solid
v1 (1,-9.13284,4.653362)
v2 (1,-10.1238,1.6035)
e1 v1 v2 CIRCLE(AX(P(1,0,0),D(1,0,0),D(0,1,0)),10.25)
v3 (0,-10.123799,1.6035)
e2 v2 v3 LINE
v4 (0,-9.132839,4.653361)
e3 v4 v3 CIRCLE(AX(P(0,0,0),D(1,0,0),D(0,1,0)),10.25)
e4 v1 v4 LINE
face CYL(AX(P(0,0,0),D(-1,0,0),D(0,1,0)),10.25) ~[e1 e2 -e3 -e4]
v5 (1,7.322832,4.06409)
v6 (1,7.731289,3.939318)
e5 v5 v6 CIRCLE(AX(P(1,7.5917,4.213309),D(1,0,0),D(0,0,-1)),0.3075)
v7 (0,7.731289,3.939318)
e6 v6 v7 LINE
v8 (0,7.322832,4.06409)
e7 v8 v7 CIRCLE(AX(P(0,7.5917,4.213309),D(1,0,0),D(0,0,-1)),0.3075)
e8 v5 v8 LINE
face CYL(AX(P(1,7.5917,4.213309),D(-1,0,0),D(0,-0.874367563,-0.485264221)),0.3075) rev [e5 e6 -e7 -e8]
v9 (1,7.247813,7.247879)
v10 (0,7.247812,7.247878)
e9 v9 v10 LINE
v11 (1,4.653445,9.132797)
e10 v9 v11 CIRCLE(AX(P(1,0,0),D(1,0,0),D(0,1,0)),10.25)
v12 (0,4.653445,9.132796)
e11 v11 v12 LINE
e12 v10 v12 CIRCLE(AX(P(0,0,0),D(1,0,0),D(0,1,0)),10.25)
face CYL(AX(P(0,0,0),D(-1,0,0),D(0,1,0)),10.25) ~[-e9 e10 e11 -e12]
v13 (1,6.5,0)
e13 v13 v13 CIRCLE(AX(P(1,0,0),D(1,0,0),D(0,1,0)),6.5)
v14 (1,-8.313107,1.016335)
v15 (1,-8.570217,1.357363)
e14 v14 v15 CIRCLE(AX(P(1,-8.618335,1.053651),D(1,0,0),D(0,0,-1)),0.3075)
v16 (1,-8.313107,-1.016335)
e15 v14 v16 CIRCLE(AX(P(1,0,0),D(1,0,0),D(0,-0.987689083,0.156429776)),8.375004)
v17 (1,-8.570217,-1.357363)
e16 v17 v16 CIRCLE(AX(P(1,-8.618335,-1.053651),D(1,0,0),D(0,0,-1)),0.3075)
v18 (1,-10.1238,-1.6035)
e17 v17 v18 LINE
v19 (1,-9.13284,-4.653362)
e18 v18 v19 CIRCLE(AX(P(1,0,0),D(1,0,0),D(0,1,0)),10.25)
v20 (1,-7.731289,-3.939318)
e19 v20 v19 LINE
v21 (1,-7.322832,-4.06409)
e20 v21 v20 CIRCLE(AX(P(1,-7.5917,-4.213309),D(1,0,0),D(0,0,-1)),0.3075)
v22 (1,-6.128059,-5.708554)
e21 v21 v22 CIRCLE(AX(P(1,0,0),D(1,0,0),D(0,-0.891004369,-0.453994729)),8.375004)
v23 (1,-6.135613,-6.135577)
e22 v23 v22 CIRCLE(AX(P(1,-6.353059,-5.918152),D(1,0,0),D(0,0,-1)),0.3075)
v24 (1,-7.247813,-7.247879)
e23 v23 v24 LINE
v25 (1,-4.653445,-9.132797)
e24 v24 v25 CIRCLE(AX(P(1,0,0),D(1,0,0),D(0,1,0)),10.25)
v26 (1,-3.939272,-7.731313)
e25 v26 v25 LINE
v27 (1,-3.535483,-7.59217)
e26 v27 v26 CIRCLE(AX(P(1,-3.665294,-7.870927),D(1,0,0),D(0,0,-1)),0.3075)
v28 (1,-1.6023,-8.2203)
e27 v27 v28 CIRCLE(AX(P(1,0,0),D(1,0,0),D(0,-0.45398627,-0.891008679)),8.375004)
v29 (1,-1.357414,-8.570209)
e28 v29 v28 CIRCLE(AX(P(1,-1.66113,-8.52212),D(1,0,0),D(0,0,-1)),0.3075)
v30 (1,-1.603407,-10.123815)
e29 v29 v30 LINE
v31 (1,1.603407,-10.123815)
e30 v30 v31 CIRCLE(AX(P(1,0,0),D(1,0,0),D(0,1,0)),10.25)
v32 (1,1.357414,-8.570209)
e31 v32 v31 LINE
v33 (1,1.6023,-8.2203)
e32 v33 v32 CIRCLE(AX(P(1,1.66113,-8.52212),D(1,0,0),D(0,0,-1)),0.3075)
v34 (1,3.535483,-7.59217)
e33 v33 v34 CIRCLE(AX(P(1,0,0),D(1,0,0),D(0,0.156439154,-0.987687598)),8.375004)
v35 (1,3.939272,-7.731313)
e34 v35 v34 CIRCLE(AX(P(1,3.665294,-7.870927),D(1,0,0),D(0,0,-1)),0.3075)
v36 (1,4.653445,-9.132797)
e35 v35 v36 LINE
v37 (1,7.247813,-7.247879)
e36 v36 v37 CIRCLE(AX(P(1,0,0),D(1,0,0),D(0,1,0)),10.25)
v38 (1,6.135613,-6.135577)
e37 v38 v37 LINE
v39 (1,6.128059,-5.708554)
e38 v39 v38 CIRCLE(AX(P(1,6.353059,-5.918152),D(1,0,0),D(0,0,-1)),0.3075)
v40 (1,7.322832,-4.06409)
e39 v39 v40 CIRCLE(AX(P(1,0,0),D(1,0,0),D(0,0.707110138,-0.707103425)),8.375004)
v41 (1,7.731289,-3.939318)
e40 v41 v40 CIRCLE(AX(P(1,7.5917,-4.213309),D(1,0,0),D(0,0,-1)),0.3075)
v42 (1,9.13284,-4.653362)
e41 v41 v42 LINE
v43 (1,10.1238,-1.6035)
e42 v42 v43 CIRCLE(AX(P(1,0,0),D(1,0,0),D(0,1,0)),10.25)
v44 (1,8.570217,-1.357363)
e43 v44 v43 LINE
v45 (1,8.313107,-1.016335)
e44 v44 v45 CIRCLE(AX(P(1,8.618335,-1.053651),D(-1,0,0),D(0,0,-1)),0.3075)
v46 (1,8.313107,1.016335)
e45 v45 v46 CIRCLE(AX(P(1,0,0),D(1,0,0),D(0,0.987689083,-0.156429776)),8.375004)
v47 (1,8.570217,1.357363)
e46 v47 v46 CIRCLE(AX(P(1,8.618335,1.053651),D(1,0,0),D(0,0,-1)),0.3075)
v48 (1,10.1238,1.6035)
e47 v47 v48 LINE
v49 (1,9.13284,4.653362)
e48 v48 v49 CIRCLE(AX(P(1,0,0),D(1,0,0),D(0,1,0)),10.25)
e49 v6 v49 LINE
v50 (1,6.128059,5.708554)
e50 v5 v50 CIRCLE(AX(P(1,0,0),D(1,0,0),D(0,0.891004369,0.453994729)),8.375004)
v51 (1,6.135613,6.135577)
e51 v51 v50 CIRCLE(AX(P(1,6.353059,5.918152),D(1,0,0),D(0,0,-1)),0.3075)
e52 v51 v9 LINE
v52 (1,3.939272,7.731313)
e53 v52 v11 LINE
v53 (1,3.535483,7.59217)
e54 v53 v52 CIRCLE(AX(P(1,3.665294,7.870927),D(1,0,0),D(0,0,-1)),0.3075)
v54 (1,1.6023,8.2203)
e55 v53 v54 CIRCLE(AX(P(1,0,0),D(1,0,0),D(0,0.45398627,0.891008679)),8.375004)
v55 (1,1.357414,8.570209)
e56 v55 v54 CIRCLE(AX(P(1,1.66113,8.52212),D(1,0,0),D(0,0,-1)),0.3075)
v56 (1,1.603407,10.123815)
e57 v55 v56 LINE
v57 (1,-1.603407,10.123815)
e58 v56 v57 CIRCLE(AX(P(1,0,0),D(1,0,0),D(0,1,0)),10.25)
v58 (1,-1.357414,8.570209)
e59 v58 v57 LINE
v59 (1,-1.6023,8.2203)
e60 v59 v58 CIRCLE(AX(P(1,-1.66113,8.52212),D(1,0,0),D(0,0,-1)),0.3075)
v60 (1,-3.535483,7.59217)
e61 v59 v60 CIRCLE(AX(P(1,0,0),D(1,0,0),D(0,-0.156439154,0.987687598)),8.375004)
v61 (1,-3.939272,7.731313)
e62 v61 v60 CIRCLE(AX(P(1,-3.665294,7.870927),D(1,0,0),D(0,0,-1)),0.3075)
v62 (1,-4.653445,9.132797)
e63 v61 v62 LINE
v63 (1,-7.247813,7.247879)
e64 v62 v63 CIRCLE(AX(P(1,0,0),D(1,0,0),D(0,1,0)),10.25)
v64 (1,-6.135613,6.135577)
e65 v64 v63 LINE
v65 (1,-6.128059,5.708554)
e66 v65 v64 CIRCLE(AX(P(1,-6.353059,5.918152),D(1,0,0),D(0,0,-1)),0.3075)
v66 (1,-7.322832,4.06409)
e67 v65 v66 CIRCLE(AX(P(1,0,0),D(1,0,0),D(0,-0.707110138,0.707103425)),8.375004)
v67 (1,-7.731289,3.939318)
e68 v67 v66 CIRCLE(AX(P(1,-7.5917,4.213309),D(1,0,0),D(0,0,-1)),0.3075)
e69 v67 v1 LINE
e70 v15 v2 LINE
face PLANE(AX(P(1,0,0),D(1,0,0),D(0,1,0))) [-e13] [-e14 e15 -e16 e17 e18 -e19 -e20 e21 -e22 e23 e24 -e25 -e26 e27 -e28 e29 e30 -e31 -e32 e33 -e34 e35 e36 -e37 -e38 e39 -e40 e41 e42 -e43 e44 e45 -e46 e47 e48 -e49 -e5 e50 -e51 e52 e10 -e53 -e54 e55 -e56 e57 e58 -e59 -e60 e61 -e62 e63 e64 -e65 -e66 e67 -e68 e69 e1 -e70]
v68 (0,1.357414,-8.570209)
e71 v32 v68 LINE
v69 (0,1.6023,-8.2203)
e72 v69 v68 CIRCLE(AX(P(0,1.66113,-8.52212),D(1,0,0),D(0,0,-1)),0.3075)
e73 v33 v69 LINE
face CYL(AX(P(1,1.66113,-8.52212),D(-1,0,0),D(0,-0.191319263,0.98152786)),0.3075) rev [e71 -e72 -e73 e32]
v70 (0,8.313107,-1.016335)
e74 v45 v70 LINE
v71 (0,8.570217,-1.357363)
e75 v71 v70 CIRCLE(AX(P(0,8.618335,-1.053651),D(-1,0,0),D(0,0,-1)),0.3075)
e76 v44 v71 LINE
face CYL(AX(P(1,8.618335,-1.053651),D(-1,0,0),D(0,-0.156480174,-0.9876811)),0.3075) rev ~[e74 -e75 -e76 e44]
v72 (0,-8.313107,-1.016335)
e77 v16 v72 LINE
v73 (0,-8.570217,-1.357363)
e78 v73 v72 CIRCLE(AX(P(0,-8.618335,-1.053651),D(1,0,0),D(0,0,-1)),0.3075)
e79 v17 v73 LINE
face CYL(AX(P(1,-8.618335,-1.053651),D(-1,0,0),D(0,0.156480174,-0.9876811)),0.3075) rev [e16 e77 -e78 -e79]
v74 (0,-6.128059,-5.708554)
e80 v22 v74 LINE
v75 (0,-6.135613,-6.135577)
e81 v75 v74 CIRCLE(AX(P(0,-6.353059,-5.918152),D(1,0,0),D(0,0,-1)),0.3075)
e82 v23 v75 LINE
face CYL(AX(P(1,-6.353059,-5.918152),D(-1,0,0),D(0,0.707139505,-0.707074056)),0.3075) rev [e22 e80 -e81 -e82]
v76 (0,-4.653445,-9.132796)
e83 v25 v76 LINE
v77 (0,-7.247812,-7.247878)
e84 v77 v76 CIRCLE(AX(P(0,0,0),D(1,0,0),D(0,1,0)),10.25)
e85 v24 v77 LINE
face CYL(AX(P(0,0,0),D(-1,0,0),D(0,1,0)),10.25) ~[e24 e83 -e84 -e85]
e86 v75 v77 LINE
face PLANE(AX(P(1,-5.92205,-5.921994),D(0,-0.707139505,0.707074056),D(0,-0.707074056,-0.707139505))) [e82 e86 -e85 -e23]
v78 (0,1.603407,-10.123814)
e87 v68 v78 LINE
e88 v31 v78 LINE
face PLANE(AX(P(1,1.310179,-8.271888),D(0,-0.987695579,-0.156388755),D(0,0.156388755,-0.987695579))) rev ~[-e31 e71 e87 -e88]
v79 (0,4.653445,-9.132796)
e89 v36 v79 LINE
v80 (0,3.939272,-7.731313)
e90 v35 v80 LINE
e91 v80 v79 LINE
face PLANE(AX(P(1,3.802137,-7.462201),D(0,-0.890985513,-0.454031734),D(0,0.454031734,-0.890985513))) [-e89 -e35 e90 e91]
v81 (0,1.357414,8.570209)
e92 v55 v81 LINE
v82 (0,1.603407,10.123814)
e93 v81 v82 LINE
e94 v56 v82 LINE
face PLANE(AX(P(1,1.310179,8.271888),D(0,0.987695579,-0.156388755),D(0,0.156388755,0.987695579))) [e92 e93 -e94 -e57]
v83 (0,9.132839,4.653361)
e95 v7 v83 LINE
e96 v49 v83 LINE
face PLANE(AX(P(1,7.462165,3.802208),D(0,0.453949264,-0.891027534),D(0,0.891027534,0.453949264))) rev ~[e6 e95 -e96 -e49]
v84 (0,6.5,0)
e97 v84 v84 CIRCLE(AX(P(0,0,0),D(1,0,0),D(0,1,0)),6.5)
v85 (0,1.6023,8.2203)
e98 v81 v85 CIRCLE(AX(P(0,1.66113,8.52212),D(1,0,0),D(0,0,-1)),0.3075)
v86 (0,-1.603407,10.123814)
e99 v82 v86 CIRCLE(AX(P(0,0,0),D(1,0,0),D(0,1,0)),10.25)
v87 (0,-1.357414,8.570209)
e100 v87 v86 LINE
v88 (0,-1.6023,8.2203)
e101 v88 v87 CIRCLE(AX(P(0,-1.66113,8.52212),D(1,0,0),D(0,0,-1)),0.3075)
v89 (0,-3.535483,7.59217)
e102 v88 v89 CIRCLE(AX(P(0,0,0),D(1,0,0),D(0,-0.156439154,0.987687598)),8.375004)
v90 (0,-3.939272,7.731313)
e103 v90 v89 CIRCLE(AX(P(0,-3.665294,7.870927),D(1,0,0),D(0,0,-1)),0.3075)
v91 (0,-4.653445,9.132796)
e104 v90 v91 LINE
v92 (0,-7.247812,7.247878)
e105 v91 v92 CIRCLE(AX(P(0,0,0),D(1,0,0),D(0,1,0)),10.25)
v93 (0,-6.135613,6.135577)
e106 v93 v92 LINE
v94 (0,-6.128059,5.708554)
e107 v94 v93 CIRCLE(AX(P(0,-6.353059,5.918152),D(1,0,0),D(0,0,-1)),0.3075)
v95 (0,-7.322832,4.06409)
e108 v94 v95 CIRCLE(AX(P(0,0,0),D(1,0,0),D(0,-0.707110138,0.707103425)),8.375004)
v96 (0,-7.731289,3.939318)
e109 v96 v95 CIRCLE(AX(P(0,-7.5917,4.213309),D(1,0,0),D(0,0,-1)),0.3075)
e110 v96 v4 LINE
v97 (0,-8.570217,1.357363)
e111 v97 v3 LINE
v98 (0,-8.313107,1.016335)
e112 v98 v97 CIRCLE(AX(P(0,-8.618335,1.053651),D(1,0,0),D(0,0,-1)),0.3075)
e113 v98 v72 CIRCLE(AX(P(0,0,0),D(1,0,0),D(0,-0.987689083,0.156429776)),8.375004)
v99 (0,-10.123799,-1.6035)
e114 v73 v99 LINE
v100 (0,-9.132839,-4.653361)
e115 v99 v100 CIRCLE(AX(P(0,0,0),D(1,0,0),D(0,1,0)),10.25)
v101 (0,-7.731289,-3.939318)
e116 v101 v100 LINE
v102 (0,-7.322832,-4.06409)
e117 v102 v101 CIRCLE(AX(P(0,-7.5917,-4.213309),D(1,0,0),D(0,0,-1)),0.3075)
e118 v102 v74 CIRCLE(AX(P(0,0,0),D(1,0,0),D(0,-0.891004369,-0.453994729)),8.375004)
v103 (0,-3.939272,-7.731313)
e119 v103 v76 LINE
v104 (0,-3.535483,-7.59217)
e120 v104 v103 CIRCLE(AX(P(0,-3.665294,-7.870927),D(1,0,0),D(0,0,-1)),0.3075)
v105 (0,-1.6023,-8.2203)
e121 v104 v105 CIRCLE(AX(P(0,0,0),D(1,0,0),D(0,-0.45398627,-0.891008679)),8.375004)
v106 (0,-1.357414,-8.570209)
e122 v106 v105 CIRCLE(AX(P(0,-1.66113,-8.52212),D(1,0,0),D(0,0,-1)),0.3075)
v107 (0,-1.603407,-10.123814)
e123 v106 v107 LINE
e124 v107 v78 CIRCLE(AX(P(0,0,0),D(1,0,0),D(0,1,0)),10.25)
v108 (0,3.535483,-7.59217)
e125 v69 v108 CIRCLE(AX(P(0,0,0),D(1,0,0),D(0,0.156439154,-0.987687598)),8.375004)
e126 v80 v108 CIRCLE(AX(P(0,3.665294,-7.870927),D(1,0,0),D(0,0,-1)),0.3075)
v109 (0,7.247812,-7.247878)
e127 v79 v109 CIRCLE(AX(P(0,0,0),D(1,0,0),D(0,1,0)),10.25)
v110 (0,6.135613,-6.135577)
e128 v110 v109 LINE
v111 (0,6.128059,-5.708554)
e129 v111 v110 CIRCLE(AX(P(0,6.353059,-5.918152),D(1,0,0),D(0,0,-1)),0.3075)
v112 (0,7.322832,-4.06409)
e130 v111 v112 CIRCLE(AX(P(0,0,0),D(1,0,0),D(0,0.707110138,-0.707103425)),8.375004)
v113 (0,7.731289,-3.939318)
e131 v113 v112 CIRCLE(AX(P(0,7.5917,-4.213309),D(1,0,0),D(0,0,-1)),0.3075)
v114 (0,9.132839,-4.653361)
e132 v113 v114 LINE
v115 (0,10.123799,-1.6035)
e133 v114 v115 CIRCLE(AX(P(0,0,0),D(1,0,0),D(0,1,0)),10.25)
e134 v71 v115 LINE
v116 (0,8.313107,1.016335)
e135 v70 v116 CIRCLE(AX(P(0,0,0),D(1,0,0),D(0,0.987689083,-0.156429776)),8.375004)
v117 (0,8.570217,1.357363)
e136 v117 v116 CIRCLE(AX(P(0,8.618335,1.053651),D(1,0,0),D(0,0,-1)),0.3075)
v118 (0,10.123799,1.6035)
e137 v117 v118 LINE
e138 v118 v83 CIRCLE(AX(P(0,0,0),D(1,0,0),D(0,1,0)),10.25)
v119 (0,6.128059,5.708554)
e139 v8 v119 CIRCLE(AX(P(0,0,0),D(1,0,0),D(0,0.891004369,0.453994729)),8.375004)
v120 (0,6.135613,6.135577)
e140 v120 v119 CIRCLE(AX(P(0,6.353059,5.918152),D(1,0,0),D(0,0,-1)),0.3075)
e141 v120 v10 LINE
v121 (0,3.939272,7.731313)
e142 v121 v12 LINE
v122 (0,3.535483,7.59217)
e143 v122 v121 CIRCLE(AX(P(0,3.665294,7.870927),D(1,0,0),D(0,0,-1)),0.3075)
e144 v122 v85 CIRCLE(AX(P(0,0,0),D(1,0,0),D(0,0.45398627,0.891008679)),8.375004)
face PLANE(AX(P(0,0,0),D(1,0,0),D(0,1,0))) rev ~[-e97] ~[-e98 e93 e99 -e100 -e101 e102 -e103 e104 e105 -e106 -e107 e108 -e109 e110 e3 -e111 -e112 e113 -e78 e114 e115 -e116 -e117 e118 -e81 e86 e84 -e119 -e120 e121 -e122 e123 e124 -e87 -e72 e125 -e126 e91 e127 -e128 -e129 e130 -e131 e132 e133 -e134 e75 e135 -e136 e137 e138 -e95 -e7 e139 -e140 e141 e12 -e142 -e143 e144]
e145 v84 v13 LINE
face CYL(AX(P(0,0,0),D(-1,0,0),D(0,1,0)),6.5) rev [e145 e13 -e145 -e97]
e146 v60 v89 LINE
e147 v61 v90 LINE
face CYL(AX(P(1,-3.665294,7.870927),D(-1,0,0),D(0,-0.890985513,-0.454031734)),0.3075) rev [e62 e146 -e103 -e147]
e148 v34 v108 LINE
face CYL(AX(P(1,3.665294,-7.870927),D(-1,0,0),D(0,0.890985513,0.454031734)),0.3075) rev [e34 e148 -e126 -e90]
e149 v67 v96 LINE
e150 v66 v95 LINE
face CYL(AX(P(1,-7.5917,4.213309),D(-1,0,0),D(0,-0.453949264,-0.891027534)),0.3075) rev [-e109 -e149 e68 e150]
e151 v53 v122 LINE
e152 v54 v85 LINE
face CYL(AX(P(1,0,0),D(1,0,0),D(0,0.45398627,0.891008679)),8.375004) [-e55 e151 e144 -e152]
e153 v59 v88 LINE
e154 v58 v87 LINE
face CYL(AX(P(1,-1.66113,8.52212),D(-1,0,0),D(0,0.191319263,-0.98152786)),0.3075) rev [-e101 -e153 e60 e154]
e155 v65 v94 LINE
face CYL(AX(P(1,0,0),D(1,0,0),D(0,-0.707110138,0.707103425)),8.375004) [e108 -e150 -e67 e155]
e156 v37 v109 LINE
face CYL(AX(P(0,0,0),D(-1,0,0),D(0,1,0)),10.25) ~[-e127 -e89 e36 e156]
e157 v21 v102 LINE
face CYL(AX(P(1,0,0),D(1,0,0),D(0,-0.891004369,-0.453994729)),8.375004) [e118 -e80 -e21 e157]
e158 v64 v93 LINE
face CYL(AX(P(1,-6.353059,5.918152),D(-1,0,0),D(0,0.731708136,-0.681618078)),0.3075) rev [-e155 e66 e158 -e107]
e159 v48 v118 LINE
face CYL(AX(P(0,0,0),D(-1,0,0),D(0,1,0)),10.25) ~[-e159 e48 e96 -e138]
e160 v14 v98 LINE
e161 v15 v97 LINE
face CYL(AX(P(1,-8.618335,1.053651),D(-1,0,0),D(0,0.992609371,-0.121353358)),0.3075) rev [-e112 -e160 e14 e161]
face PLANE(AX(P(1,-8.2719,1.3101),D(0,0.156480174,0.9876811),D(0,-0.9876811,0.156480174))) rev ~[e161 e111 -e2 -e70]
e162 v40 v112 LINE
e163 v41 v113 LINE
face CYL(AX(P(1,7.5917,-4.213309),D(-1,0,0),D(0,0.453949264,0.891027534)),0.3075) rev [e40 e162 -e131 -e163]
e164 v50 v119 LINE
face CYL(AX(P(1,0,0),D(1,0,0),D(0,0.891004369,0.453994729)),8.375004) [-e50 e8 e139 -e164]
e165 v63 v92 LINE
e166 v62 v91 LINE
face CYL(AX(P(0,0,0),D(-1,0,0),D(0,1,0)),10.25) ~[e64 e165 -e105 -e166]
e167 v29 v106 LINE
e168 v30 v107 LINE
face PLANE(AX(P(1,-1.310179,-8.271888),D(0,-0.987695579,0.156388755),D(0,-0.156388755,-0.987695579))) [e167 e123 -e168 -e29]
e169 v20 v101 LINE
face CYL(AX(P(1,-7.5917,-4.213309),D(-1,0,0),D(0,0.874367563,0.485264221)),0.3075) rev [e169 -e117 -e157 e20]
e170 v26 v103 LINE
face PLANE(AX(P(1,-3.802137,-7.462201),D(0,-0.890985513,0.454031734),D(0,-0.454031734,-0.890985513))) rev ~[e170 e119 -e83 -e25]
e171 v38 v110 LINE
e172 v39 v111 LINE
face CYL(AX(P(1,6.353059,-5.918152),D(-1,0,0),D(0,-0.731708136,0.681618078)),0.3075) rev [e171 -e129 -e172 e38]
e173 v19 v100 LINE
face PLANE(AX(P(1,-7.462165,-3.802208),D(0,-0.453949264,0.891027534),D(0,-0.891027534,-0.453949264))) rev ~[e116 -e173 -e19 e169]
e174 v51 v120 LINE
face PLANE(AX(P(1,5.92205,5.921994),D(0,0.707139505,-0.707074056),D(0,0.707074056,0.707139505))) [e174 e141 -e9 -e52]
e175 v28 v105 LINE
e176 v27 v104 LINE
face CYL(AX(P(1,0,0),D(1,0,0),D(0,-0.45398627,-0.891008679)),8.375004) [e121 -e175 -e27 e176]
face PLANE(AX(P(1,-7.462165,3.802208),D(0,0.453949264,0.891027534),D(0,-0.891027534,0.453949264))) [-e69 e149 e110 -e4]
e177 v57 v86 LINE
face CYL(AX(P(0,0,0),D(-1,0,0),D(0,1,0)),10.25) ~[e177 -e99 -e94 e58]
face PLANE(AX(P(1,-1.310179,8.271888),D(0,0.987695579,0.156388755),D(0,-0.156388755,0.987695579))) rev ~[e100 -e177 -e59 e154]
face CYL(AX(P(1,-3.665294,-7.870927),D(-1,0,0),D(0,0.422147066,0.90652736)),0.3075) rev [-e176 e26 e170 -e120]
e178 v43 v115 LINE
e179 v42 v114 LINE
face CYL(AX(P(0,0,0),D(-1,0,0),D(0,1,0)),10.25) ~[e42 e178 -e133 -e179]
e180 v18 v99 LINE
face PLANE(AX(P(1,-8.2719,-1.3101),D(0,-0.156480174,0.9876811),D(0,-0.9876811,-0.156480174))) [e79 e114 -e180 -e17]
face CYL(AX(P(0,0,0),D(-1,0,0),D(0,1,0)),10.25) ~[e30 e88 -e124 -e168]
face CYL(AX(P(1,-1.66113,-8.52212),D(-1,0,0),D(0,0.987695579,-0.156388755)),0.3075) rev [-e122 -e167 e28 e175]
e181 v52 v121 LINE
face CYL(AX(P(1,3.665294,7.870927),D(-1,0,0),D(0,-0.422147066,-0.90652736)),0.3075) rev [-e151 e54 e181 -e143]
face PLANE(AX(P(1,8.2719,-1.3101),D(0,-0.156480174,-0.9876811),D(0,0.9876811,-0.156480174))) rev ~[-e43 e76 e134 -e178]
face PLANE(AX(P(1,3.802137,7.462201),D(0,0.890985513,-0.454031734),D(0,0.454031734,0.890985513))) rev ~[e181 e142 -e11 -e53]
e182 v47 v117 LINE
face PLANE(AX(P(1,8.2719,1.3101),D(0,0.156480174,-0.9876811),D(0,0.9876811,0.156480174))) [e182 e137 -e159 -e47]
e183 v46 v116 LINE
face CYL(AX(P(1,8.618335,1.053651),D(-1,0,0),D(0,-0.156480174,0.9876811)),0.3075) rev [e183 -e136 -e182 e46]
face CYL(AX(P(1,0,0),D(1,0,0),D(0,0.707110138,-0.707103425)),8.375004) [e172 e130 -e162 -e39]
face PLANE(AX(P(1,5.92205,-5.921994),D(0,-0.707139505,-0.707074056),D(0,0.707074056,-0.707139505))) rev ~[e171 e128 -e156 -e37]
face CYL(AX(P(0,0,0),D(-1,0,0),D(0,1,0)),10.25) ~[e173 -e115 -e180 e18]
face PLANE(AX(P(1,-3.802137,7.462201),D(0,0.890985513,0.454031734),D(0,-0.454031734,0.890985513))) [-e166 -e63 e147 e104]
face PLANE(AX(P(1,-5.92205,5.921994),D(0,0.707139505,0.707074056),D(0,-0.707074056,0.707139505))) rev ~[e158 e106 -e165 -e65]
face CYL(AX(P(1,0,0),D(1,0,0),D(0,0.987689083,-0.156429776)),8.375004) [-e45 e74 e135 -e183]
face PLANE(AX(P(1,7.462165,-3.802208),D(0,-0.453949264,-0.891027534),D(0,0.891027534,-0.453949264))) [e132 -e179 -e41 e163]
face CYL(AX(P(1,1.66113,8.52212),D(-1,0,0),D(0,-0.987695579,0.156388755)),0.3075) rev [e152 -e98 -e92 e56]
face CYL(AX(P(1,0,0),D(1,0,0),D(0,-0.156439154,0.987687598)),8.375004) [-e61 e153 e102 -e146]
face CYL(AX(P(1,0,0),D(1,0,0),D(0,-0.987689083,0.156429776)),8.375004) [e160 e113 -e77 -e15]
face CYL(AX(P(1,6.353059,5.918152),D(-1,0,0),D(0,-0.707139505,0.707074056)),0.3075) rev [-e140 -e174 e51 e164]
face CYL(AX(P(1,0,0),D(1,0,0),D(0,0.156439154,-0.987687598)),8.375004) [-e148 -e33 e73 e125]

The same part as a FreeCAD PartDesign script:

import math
import FreeCAD as App
import Part
import Sketcher

V = App.Vector
Q = App.Units.Quantity


def edges_at(feature, points):
    """Names of the edges that pass closest to the given points."""
    edges = feature.Shape.Edges
    near = lambda p: min(range(len(edges)), key=lambda i: edges[i].distToShape(Part.Vertex(*p))[0])
    return sorted({f"Edge{near(p) + 1}" for p in points})

doc = App.newDocument("Part")
body = doc.addObject("PartDesign::Body", "Body")

# Sketch on YZ plane
sketch1 = doc.addObject("Sketcher::SketchObject", "Sketch")
body.addObject(sketch1)
sketch1.AttachmentSupport = (doc.YZ_Plane, [""])
sketch1.MapMode = "FlatFace"
sketch1.addGeometry(Part.Circle(V(0, 0, 0), V(0, 0, 1), 10), False)
sketch1.addGeometry(Part.Circle(V(0, 0, 0), V(0, 0, 1), 6), False)
sketch1.addConstraint(Sketcher.Constraint("Coincident", 0, 3, -1, 1))
sketch1.addConstraint(Sketcher.Constraint("Coincident", 1, 3, -1, 1))
sketch1.addConstraint(Sketcher.Constraint("Diameter", 1, Q("13 mm")))
sketch1.addConstraint(Sketcher.Constraint("Diameter", 0, Q("20.5 mm")))
pad1 = doc.addObject("PartDesign::Pad", "Pad")
body.addObject(pad1)
pad1.Profile = sketch1
pad1.Length = 1

# Sketch on YZ plane
sketch2 = doc.addObject("Sketcher::SketchObject", "Sketch001")
body.addObject(sketch2)
sketch2.AttachmentSupport = (doc.YZ_Plane, [""])
sketch2.MapMode = "FlatFace"
sketch2.AttachmentOffset = App.Placement(V(0, 0, 1), App.Rotation())
sketch2.addGeometry(Part.LineSegment(V(8.3, -1.3, 0), V(10.1, -1.6, 0)), False)
sketch2.addGeometry(Part.ArcOfCircle(Part.Circle(V(0, 0, 0), V(0, 0, 1), 10.2), math.radians(-9), math.radians(9)), False)
sketch2.addGeometry(Part.LineSegment(V(10.1, 1.6, 0), V(8.3, 1.3, 0)), False)
sketch2.addGeometry(Part.ArcOfCircle(Part.Circle(V(0, 0, 0), V(0, 0, 1), 8.4), math.radians(-9), math.radians(9)), False)
sketch2.addConstraint(Sketcher.Constraint("Coincident", 0, 2, 1, 1))
sketch2.addConstraint(Sketcher.Constraint("Coincident", 1, 2, 2, 1))
sketch2.addConstraint(Sketcher.Constraint("Coincident", 2, 2, 3, 2))
sketch2.addConstraint(Sketcher.Constraint("Coincident", 3, 1, 0, 1))
sketch2.addConstraint(Sketcher.Constraint("Coincident", 1, 3, -1, 1))
sketch2.addConstraint(Sketcher.Constraint("Coincident", 3, 3, -1, 1))
sketch2.addConstraint(Sketcher.Constraint("Vertical", 0, 2, 1, 2))
sketch2.addConstraint(Sketcher.Constraint("Vertical", 2, 2, 3, 1))
sketch2.addConstraint(Sketcher.Constraint("Radius", 3, Q("8.375 mm")))
sketch2.addConstraint(Sketcher.Constraint("Radius", 1, Q("10.25 mm")))
sketch2.addConstraint(Sketcher.Constraint("DistanceY", -1, 1, 2, 2, Q("1.31 mm")))
sketch2.addConstraint(Sketcher.Constraint("DistanceY", 0, 2, 1, 2, Q("3.207 mm")))
pocket1 = doc.addObject("PartDesign::Pocket", "Pocket")
body.addObject(pocket1)
pocket1.Profile = sketch2
pocket1.Type = "ThroughAll"
doc.recompute()

fillet = doc.addObject("PartDesign::Fillet", "Fillet")
body.addObject(fillet)
fillet.Base = (pocket1, edges_at(pocket1, [(0.5, 8.272, 1.31), (0.5, 8.272, -1.31)]))
fillet.Radius = 0.3075
doc.recompute()

polarpattern = doc.addObject("PartDesign::PolarPattern", "PolarPattern")
body.addObject(polarpattern)
polarpattern.Originals = [pocket1, fillet]
polarpattern.Axis = (doc.X_Axis, [""])
polarpattern.Angle = 360
polarpattern.Occurrences = 10
body.Tip = polarpattern

doc.recompute()
